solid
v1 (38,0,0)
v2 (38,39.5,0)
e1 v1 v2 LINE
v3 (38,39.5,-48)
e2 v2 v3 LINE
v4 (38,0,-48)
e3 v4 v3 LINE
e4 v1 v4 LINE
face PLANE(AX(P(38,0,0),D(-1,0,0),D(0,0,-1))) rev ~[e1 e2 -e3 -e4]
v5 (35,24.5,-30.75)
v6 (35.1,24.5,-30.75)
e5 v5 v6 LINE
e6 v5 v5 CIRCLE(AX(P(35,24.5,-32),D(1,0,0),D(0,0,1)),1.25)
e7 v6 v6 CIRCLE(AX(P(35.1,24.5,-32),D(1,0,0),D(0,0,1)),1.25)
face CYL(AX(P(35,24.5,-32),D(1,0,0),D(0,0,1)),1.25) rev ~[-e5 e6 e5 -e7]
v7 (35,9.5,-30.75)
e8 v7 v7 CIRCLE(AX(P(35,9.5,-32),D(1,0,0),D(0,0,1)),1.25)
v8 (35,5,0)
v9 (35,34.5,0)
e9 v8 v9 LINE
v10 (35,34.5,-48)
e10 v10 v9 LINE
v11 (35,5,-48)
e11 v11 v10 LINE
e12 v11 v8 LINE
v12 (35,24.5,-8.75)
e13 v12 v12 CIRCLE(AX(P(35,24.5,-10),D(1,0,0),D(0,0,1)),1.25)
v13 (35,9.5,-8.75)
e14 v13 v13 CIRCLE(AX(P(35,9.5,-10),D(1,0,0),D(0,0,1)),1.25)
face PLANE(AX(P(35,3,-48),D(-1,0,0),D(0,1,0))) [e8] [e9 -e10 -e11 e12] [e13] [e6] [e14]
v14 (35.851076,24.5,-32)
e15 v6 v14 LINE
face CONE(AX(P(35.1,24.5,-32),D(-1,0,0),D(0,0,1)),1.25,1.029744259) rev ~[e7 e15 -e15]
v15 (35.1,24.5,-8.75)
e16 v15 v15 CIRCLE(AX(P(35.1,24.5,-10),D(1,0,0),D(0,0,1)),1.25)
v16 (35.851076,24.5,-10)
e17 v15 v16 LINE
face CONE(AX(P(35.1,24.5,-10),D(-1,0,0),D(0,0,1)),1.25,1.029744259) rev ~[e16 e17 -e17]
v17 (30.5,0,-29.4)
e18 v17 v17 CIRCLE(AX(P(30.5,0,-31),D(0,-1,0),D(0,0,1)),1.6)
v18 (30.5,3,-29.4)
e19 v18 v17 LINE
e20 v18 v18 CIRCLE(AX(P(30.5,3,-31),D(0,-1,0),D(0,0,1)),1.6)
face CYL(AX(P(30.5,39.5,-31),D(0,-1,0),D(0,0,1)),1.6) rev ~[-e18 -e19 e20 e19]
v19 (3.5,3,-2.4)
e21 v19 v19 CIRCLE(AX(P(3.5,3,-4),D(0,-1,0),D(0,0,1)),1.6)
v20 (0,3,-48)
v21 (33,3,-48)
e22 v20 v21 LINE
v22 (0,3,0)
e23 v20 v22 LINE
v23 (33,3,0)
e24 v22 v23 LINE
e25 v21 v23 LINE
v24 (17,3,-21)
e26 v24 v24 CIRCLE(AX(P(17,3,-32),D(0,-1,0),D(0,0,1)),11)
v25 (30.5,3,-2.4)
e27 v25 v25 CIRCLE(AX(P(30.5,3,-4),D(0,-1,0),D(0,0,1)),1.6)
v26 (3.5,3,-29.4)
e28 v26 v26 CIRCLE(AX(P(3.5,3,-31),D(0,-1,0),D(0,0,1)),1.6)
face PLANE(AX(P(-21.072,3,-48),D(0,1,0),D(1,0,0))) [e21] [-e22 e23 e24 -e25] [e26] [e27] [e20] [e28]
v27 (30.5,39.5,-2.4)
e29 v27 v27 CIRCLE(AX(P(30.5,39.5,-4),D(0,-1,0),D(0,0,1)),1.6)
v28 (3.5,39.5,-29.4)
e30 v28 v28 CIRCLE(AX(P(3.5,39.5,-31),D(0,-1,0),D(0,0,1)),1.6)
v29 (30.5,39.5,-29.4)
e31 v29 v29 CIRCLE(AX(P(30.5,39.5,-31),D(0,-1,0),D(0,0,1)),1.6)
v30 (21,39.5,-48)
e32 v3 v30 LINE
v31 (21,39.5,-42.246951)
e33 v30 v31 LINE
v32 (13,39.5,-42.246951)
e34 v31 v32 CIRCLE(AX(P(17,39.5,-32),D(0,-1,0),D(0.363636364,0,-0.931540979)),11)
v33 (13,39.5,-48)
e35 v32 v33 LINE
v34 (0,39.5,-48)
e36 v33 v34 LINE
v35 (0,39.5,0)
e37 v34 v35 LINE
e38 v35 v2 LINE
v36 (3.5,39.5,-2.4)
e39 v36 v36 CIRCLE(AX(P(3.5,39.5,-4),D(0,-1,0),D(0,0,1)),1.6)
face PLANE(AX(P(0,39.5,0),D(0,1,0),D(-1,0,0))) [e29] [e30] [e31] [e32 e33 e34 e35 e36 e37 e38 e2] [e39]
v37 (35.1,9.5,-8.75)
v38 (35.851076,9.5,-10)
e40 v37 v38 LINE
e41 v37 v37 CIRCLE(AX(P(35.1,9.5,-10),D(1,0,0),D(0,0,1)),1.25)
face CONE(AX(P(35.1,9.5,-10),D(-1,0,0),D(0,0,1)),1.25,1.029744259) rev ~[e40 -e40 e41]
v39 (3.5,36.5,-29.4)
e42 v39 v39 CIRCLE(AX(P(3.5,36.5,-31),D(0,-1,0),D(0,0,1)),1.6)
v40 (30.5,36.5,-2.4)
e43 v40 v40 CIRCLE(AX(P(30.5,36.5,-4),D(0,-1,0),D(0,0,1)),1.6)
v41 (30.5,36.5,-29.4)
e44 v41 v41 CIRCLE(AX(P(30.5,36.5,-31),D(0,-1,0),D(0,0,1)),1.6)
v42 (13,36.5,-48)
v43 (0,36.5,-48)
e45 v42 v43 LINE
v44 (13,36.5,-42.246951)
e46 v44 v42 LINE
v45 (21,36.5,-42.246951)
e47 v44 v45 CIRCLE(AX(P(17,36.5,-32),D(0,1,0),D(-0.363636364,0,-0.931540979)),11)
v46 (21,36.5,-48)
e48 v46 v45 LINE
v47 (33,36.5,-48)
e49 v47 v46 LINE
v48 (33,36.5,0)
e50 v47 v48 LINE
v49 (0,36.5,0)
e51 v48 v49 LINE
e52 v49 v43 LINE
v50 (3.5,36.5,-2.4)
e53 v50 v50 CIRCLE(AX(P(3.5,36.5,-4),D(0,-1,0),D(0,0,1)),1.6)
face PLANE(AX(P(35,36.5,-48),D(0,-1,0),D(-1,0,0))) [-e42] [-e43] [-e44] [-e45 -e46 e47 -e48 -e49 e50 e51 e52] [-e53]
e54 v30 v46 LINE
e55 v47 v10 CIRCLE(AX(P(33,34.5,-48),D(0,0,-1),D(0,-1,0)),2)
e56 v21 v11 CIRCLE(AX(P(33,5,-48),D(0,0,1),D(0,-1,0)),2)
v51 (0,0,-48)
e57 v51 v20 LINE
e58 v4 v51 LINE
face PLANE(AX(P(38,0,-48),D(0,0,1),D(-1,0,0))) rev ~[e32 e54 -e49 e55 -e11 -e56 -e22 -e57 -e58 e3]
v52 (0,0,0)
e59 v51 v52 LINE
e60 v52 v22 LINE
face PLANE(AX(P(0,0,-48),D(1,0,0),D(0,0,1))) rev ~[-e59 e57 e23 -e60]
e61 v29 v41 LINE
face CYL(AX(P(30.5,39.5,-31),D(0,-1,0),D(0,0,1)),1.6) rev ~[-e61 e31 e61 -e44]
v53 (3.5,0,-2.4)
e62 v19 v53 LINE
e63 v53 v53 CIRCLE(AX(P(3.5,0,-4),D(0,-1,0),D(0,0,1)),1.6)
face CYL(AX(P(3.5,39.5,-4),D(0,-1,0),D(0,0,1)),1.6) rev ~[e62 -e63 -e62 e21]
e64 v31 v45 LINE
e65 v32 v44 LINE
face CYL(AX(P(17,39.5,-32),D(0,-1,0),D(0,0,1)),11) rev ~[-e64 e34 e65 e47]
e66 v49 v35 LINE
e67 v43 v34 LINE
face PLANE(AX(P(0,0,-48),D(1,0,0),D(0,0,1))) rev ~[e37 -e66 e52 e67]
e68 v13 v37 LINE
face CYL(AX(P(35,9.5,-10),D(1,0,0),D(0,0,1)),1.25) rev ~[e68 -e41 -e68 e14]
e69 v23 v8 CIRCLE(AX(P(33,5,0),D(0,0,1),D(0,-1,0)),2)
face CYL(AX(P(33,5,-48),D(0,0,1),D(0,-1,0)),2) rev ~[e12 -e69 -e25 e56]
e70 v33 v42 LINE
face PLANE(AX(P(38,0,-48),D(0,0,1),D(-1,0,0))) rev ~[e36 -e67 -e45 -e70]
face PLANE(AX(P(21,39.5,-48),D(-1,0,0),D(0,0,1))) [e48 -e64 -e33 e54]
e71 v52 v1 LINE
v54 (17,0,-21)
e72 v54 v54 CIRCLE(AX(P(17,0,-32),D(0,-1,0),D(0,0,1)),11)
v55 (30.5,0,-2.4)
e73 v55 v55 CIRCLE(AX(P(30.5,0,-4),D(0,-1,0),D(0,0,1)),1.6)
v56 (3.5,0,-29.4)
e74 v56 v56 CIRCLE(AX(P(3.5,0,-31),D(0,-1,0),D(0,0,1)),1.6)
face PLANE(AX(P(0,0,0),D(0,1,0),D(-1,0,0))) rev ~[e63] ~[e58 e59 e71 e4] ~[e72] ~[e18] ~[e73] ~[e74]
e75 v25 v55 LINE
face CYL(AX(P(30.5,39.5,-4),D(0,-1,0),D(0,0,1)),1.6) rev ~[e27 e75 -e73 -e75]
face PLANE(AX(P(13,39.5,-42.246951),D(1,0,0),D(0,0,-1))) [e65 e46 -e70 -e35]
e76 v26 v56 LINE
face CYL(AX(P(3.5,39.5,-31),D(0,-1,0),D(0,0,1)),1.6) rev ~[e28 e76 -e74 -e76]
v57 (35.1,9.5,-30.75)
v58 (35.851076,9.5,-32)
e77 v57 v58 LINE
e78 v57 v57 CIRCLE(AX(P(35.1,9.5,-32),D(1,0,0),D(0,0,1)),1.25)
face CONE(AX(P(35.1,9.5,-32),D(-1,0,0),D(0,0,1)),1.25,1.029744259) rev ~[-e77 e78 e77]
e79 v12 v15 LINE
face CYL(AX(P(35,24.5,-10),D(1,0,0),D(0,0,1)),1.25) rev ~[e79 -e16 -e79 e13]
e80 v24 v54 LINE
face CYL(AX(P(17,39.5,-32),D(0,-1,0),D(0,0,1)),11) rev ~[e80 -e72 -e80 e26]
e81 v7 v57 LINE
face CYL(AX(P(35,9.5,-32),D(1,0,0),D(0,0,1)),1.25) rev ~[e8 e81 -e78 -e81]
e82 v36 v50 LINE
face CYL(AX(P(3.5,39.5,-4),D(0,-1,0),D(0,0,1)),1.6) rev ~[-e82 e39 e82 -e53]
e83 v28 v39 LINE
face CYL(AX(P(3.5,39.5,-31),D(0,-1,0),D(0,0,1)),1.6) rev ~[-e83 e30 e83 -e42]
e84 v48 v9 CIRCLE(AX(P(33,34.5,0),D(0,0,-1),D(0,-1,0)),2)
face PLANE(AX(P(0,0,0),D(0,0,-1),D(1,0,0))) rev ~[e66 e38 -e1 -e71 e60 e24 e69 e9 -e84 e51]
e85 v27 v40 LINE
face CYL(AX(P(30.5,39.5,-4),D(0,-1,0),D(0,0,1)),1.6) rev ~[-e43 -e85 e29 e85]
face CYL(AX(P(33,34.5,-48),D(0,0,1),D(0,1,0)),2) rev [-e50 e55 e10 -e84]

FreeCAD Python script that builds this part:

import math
import FreeCAD as App
import Part
import Sketcher

V = App.Vector


def edges_at(feature, points):
    """Names of the edges that pass closest to the given points."""
    edges = feature.Shape.Edges
    near = lambda p: min(range(len(edges)), key=lambda i: edges[i].distToShape(Part.Vertex(*p))[0])
    return sorted({f"Edge{near(p) + 1}" for p in points})

doc = App.newDocument("Part")
body = doc.addObject("PartDesign::Body", "Body")

sketch1 = body.newObject("Sketcher::SketchObject", "Sketch")
sketch1.AttachmentSupport = (doc.getObject("XZ_Plane"), [""])
sketch1.MapMode = "FlatFace"
sketch1.addGeometry([
    Part.LineSegment(V(0, -48, 0), V(0, 0, 0)),
    Part.LineSegment(V(0, 0, 0), V(38, 0, 0)),
    Part.LineSegment(V(38, 0, 0), V(38, -48, 0)),
    Part.LineSegment(V(38, -48, 0), V(0, -48, 0)),
], False)
sketch1.addConstraint([
    Sketcher.Constraint("Coincident", 0, 2, 1, 1),
    Sketcher.Constraint("Coincident", 1, 2, 2, 1),
    Sketcher.Constraint("Coincident", 2, 2, 3, 1),
    Sketcher.Constraint("Coincident", 3, 2, 0, 1),
    Sketcher.Constraint("Vertical", 0),
    Sketcher.Constraint("Horizontal", 1),
    Sketcher.Constraint("Vertical", 2),
    Sketcher.Constraint("Horizontal", 3),
    Sketcher.Constraint("Coincident", 0, 2, -1, 1),
    Sketcher.Constraint("DistanceX", 1, 1, 1, 2, 38.0),
    Sketcher.Constraint("DistanceY", 0, 1, 0, 2, 48.0),
])
pad1 = body.newObject("PartDesign::Pad", "Pad")
pad1.Profile = sketch1
pad1.Length = 39.5
pad1.Reversed = True

sketch2 = body.newObject("Sketcher::SketchObject", "Sketch001")
sketch2.AttachmentSupport = (doc.getObject("XY_Plane"), [""])
sketch2.MapMode = "FlatFace"
sketch2.AttachmentOffset = App.Placement(V(0, 0, -48), App.Rotation())
sketch2.addGeometry([
    Part.LineSegment(V(-21.072, 36.5, 0), V(35, 36.5, 0)),
    Part.LineSegment(V(35, 36.5, 0), V(35, 3, 0)),
    Part.LineSegment(V(35, 3, 0), V(-21.072, 3, 0)),
    Part.LineSegment(V(-21.072, 3, 0), V(-21.072, 36.5, 0)),
], False)
sketch2.addConstraint([
    Sketcher.Constraint("Coincident", 0, 2, 1, 1),
    Sketcher.Constraint("Coincident", 1, 2, 2, 1),
    Sketcher.Constraint("Coincident", 2, 2, 3, 1),
    Sketcher.Constraint("Coincident", 3, 2, 0, 1),
    Sketcher.Constraint("Horizontal", 0),
    Sketcher.Constraint("Vertical", 1),
    Sketcher.Constraint("Horizontal", 2),
    Sketcher.Constraint("Vertical", 3),
    Sketcher.Constraint("DistanceY", 1, 2, 1, 1, 33.5),
    Sketcher.Constraint("DistanceY", -1, 1, 1, 2, 3.0),
    Sketcher.Constraint("DistanceX", -1, 1, 0, 2, 35.0),
    Sketcher.Constraint("DistanceX", 0, 1, 0, 2, 56.072),
])
pocket1 = body.newObject("PartDesign::Pocket", "Pocket")
pocket1.Profile = sketch2
pocket1.Length = 100
pocket1.Reversed = True

sketch3 = body.newObject("Sketcher::SketchObject", "Sketch002")
sketch3.AttachmentSupport = (doc.getObject("XZ_Plane"), [""])
sketch3.MapMode = "FlatFace"
sketch3.AttachmentOffset = App.Placement(V(0, 0, -39.5), App.Rotation())
sketch3.addGeometry(Part.Circle(V(17, -32, 0), V(0, 0, 1), 11), False)
sketch3.addConstraint([
    Sketcher.Constraint("Diameter", 0, 22.0),
    Sketcher.Constraint("DistanceX", -1, 1, 0, 3, 17.0),
    Sketcher.Constraint("DistanceY", 0, 3, -1, 1, 32.0),
])
doc.recompute()
hole = body.newObject("PartDesign::Hole", "Hole")
hole.Profile = sketch3
hole.ThreadType = "None"
hole.Diameter = 22
hole.DepthType = "ThroughAll"
hole.Reversed = True

sketch4 = body.newObject("Sketcher::SketchObject", "Sketch003")
sketch4.AttachmentSupport = (doc.getObject("XZ_Plane"), [""])
sketch4.MapMode = "FlatFace"
sketch4.AttachmentOffset = App.Placement(V(0, 0, -39.5), App.Rotation())
sketch4.addGeometry([
    Part.Circle(V(30.5, -4, 0), V(0, 0, 1), 1.6),
    Part.Circle(V(30.5, -31, 0), V(0, 0, 1), 1.6),
    Part.Circle(V(3.5, -31, 0), V(0, 0, 1), 1.6),
    Part.Circle(V(3.5, -4, 0), V(0, 0, 1), 1.6),
], False)
sketch4.addConstraint([
    Sketcher.Constraint("Equal", 0, 1),
    Sketcher.Constraint("Equal", 1, 2),
    Sketcher.Constraint("Equal", 2, 3),
    Sketcher.Constraint("Horizontal", 1, 3, 2, 3),
    Sketcher.Constraint("Horizontal", 0, 3, 3, 3),
    Sketcher.Constraint("Vertical", 0, 3, 1, 3),
    Sketcher.Constraint("Vertical", 2, 3, 3, 3),
    Sketcher.Constraint("Diameter", 0, 3.2),
    Sketcher.Constraint("DistanceY", 0, 3, -1, 1, 4.0),
    Sketcher.Constraint("DistanceY", 1, 3, -1, 1, 31.0),
    Sketcher.Constraint("DistanceX", 2, 3, 1, 3, 27.0),
    Sketcher.Constraint("DistanceX", -1, 1, 0, 3, 30.5),
])
doc.recompute()
hole2 = body.newObject("PartDesign::Hole", "Hole001")
hole2.Profile = sketch4
hole2.ThreadType = "None"
hole2.Diameter = 3.2
hole2.DepthType = "ThroughAll"
hole2.Reversed = True
doc.recompute()

fillet = body.newObject("PartDesign::Fillet", "Fillet")
fillet.Base = (hole2, edges_at(hole2, [(35, 3, -24), (35, 36.5, -24)]))
fillet.Radius = 2

sketch5 = body.newObject("Sketcher::SketchObject", "Sketch004")
sketch5.AttachmentSupport = (doc.getObject("XZ_Plane"), [""])
sketch5.MapMode = "FlatFace"
sketch5.AttachmentOffset = App.Placement(V(0, 0, -39.5), App.Rotation())
sketch5.addGeometry([
    Part.LineSegment(V(21, -42.246951, 0), V(21, -48, 0)),
    Part.LineSegment(V(21, -48, 0), V(13, -48, 0)),
    Part.LineSegment(V(13, -48, 0), V(13, -42.246951, 0)),
    Part.ArcOfCircle(Part.Circle(V(17, -32, 0), V(0, 0, 1), 11), math.radians(-111.323686), math.radians(-68.676314)),
], False)
sketch5.addConstraint([
    Sketcher.Constraint("Coincident", 0, 2, 1, 1),
    Sketcher.Constraint("Coincident", 1, 2, 2, 1),
    Sketcher.Constraint("Coincident", 2, 2, 3, 1),
    Sketcher.Constraint("Coincident", 3, 2, 0, 1),
    Sketcher.Constraint("Vertical", 0),
    Sketcher.Constraint("Horizontal", 1),
    Sketcher.Constraint("Vertical", 2),
    Sketcher.Constraint("Horizontal", 2, 2, 3, 2),
    Sketcher.Constraint("DistanceX", 1, 2, 1, 1, 8.0),
    Sketcher.Constraint("Radius", 3, 11.0),
    Sketcher.Constraint("DistanceX", -1, 1, 3, 3, 17.0),
    Sketcher.Constraint("DistanceY", 3, 3, -1, 1, 32.0),
    Sketcher.Constraint("DistanceY", 0, 2, -1, 1, 48.0),
])
pocket2 = body.newObject("PartDesign::Pocket", "Pocket001")
pocket2.Profile = sketch5
pocket2.Length = 3
pocket2.Reversed = True

sketch6 = body.newObject("Sketcher::SketchObject", "Sketch005")
sketch6.AttachmentSupport = (doc.getObject("YZ_Plane"), [""])
sketch6.MapMode = "FlatFace"
sketch6.AttachmentOffset = App.Placement(V(0, 0, 35), App.Rotation())
sketch6.addGeometry([
    Part.Circle(V(9.5, -10, 0), V(0, 0, 1), 1.25),
    Part.Circle(V(9.5, -32, 0), V(0, 0, 1), 1.25),
    Part.Circle(V(24.5, -32, 0), V(0, 0, 1), 1.25),
    Part.Circle(V(24.5, -10, 0), V(0, 0, 1), 1.25),
], False)
sketch6.addConstraint([
    Sketcher.Constraint("Equal", 0, 1),
    Sketcher.Constraint("Equal", 1, 2),
    Sketcher.Constraint("Equal", 2, 3),
    Sketcher.Constraint("Horizontal", 1, 3, 2, 3),
    Sketcher.Constraint("Horizontal", 0, 3, 3, 3),
    Sketcher.Constraint("Vertical", 0, 3, 1, 3),
    Sketcher.Constraint("Vertical", 2, 3, 3, 3),
    Sketcher.Constraint("Diameter", 0, 2.5),
    Sketcher.Constraint("DistanceY", 0, 3, -1, 1, 10.0),
    Sketcher.Constraint("DistanceY", 1, 3, -1, 1, 32.0),
    Sketcher.Constraint("DistanceX", 1, 3, 2, 3, 15.0),
    Sketcher.Constraint("DistanceX", -1, 1, 0, 3, 9.5),
])
doc.recompute()
hole3 = body.newObject("PartDesign::Hole", "Hole002")
hole3.Profile = sketch6
hole3.ThreadType = "None"
hole3.Diameter = 2.5
hole3.DepthType = "Dimension"
hole3.Depth = 0.1
hole3.DrillPoint = "Angled"
hole3.DrillPointAngle = 118
hole3.Reversed = True

doc.recompute()
